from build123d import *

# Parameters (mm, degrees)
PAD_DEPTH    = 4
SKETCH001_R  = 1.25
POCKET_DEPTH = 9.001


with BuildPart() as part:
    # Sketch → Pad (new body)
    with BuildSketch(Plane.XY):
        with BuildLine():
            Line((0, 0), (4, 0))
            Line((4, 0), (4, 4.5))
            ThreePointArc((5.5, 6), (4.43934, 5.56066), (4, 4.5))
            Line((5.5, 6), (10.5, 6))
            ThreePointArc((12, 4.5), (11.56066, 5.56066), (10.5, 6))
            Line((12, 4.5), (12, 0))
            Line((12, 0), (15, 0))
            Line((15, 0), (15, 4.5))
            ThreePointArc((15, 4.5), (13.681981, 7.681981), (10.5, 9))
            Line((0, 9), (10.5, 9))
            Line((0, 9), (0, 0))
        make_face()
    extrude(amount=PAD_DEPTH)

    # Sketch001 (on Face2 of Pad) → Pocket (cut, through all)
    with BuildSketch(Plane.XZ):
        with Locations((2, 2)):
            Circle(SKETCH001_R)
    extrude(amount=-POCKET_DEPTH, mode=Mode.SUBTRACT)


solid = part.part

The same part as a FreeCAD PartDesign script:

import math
import FreeCAD as App
import Part
import Sketcher
from FreeCAD import Vector

doc = App.newDocument("Part")
body = doc.addObject("PartDesign::Body", "Body")

sketch1 = body.newObject("Sketcher::SketchObject", "Sketch")
sketch1.AttachmentSupport = (doc.getObject("XY_Plane"), [""])
sketch1.MapMode = "FlatFace"
sketch1.addGeometry(Part.LineSegment(Vector(0, 0, 0), Vector(4, 0, 0)), False)
sketch1.addGeometry(Part.LineSegment(Vector(4, 0, 0), Vector(4, 4.5, 0)), False)
sketch1.addGeometry(Part.ArcOfCircle(Part.Circle(Vector(5.500001, 4.499999, 0), Vector(0, 0, 1), 1.500001), math.radians(90.000022), math.radians(179.999978)), False)
sketch1.addGeometry(Part.LineSegment(Vector(5.5, 6, 0), Vector(10.5, 6, 0)), False)
sketch1.addGeometry(Part.ArcOfCircle(Part.Circle(Vector(10.499999, 4.499999, 0), Vector(0, 0, 1), 1.500001), math.radians(0.000022), math.radians(89.999978)), False)
sketch1.addGeometry(Part.LineSegment(Vector(12, 4.5, 0), Vector(12, 0, 0)), False)
sketch1.addGeometry(Part.LineSegment(Vector(12, 0, 0), Vector(15, 0, 0)), False)
sketch1.addGeometry(Part.LineSegment(Vector(15, 0, 0), Vector(15, 4.5, 0)), False)
sketch1.addGeometry(Part.ArcOfCircle(Part.Circle(Vector(10.500002, 4.500002, 0), Vector(0, 0, 1), 4.499998), math.radians(-0.000021), math.radians(90.000021)), False)
sketch1.addGeometry(Part.LineSegment(Vector(10.5, 9, 0), Vector(0, 9, 0)), False)
sketch1.addGeometry(Part.LineSegment(Vector(0, 9, 0), Vector(0, 0, 0)), False)
sketch1.addConstraint(Sketcher.Constraint("Coincident", 0, 2, 1, 1))
sketch1.addConstraint(Sketcher.Constraint("Tangent", 1, 2, 2, 2))
sketch1.addConstraint(Sketcher.Constraint("Tangent", 2, 1, 3, 1))
sketch1.addConstraint(Sketcher.Constraint("Tangent", 3, 2, 4, 2))
sketch1.addConstraint(Sketcher.Constraint("Tangent", 4, 1, 5, 1))
sketch1.addConstraint(Sketcher.Constraint("Coincident", 5, 2, 6, 1))
sketch1.addConstraint(Sketcher.Constraint("Coincident", 6, 2, 7, 1))
sketch1.addConstraint(Sketcher.Constraint("Tangent", 7, 2, 8, 1))
sketch1.addConstraint(Sketcher.Constraint("Tangent", 8, 2, 9, 1))
sketch1.addConstraint(Sketcher.Constraint("Coincident", 9, 2, 10, 1))
sketch1.addConstraint(Sketcher.Constraint("Coincident", 10, 2, 0, 1))
sketch1.addConstraint(Sketcher.Constraint("Horizontal", 0))
sketch1.addConstraint(Sketcher.Constraint("Vertical", 1))
sketch1.addConstraint(Sketcher.Constraint("Horizontal", 3))
sketch1.addConstraint(Sketcher.Constraint("Vertical", 5))
sketch1.addConstraint(Sketcher.Constraint("Horizontal", 6))
sketch1.addConstraint(Sketcher.Constraint("Vertical", 7))
sketch1.addConstraint(Sketcher.Constraint("Horizontal", 9))
sketch1.addConstraint(Sketcher.Constraint("Vertical", 10))
sketch1.addConstraint(Sketcher.Constraint("Coincident", 10, 2, -1, 1))
sketch1.addConstraint(Sketcher.Constraint("Coincident", 8, 3, 4, 3))
sketch1.addConstraint(Sketcher.Constraint("Equal", 2, 4))
sketch1.addConstraint(Sketcher.Constraint("PointOnObject", 5, 2, -1))
sketch1.addConstraint(Sketcher.Constraint("Radius", 2, 1.500001))
sketch1.addConstraint(Sketcher.Constraint("Radius", 8, 4.499998))
sketch1.addConstraint(Sketcher.Constraint("DistanceX", 0, 1, 0, 2, 4.0))
sketch1.addConstraint(Sketcher.Constraint("DistanceX", 3, 1, 3, 2, 5.0))
sketch1.addConstraint(Sketcher.Constraint("DistanceY", 10, 2, 10, 1, 9.0))
pad1 = body.newObject("PartDesign::Pad", "Pad")
pad1.Profile = sketch1
pad1.Length = 4

sketch2 = body.newObject("Sketcher::SketchObject", "Sketch001")
sketch2.AttachmentSupport = (doc.getObject("XZ_Plane"), [""])
sketch2.MapMode = "FlatFace"
sketch2.addGeometry(Part.Circle(Vector(2, 2, 0), Vector(0, 0, 1), 1.25), False)
sketch2.addConstraint(Sketcher.Constraint("Diameter", 0, 2.5))
sketch2.addConstraint(Sketcher.Constraint("DistanceX", -1, 1, 0, 3, 2.0))
sketch2.addConstraint(Sketcher.Constraint("DistanceY", -1, 1, 0, 3, 2.0))
pocket1 = body.newObject("PartDesign::Pocket", "Pocket")
pocket1.Profile = sketch2
pocket1.Type = "ThroughAll"

doc.recompute()
